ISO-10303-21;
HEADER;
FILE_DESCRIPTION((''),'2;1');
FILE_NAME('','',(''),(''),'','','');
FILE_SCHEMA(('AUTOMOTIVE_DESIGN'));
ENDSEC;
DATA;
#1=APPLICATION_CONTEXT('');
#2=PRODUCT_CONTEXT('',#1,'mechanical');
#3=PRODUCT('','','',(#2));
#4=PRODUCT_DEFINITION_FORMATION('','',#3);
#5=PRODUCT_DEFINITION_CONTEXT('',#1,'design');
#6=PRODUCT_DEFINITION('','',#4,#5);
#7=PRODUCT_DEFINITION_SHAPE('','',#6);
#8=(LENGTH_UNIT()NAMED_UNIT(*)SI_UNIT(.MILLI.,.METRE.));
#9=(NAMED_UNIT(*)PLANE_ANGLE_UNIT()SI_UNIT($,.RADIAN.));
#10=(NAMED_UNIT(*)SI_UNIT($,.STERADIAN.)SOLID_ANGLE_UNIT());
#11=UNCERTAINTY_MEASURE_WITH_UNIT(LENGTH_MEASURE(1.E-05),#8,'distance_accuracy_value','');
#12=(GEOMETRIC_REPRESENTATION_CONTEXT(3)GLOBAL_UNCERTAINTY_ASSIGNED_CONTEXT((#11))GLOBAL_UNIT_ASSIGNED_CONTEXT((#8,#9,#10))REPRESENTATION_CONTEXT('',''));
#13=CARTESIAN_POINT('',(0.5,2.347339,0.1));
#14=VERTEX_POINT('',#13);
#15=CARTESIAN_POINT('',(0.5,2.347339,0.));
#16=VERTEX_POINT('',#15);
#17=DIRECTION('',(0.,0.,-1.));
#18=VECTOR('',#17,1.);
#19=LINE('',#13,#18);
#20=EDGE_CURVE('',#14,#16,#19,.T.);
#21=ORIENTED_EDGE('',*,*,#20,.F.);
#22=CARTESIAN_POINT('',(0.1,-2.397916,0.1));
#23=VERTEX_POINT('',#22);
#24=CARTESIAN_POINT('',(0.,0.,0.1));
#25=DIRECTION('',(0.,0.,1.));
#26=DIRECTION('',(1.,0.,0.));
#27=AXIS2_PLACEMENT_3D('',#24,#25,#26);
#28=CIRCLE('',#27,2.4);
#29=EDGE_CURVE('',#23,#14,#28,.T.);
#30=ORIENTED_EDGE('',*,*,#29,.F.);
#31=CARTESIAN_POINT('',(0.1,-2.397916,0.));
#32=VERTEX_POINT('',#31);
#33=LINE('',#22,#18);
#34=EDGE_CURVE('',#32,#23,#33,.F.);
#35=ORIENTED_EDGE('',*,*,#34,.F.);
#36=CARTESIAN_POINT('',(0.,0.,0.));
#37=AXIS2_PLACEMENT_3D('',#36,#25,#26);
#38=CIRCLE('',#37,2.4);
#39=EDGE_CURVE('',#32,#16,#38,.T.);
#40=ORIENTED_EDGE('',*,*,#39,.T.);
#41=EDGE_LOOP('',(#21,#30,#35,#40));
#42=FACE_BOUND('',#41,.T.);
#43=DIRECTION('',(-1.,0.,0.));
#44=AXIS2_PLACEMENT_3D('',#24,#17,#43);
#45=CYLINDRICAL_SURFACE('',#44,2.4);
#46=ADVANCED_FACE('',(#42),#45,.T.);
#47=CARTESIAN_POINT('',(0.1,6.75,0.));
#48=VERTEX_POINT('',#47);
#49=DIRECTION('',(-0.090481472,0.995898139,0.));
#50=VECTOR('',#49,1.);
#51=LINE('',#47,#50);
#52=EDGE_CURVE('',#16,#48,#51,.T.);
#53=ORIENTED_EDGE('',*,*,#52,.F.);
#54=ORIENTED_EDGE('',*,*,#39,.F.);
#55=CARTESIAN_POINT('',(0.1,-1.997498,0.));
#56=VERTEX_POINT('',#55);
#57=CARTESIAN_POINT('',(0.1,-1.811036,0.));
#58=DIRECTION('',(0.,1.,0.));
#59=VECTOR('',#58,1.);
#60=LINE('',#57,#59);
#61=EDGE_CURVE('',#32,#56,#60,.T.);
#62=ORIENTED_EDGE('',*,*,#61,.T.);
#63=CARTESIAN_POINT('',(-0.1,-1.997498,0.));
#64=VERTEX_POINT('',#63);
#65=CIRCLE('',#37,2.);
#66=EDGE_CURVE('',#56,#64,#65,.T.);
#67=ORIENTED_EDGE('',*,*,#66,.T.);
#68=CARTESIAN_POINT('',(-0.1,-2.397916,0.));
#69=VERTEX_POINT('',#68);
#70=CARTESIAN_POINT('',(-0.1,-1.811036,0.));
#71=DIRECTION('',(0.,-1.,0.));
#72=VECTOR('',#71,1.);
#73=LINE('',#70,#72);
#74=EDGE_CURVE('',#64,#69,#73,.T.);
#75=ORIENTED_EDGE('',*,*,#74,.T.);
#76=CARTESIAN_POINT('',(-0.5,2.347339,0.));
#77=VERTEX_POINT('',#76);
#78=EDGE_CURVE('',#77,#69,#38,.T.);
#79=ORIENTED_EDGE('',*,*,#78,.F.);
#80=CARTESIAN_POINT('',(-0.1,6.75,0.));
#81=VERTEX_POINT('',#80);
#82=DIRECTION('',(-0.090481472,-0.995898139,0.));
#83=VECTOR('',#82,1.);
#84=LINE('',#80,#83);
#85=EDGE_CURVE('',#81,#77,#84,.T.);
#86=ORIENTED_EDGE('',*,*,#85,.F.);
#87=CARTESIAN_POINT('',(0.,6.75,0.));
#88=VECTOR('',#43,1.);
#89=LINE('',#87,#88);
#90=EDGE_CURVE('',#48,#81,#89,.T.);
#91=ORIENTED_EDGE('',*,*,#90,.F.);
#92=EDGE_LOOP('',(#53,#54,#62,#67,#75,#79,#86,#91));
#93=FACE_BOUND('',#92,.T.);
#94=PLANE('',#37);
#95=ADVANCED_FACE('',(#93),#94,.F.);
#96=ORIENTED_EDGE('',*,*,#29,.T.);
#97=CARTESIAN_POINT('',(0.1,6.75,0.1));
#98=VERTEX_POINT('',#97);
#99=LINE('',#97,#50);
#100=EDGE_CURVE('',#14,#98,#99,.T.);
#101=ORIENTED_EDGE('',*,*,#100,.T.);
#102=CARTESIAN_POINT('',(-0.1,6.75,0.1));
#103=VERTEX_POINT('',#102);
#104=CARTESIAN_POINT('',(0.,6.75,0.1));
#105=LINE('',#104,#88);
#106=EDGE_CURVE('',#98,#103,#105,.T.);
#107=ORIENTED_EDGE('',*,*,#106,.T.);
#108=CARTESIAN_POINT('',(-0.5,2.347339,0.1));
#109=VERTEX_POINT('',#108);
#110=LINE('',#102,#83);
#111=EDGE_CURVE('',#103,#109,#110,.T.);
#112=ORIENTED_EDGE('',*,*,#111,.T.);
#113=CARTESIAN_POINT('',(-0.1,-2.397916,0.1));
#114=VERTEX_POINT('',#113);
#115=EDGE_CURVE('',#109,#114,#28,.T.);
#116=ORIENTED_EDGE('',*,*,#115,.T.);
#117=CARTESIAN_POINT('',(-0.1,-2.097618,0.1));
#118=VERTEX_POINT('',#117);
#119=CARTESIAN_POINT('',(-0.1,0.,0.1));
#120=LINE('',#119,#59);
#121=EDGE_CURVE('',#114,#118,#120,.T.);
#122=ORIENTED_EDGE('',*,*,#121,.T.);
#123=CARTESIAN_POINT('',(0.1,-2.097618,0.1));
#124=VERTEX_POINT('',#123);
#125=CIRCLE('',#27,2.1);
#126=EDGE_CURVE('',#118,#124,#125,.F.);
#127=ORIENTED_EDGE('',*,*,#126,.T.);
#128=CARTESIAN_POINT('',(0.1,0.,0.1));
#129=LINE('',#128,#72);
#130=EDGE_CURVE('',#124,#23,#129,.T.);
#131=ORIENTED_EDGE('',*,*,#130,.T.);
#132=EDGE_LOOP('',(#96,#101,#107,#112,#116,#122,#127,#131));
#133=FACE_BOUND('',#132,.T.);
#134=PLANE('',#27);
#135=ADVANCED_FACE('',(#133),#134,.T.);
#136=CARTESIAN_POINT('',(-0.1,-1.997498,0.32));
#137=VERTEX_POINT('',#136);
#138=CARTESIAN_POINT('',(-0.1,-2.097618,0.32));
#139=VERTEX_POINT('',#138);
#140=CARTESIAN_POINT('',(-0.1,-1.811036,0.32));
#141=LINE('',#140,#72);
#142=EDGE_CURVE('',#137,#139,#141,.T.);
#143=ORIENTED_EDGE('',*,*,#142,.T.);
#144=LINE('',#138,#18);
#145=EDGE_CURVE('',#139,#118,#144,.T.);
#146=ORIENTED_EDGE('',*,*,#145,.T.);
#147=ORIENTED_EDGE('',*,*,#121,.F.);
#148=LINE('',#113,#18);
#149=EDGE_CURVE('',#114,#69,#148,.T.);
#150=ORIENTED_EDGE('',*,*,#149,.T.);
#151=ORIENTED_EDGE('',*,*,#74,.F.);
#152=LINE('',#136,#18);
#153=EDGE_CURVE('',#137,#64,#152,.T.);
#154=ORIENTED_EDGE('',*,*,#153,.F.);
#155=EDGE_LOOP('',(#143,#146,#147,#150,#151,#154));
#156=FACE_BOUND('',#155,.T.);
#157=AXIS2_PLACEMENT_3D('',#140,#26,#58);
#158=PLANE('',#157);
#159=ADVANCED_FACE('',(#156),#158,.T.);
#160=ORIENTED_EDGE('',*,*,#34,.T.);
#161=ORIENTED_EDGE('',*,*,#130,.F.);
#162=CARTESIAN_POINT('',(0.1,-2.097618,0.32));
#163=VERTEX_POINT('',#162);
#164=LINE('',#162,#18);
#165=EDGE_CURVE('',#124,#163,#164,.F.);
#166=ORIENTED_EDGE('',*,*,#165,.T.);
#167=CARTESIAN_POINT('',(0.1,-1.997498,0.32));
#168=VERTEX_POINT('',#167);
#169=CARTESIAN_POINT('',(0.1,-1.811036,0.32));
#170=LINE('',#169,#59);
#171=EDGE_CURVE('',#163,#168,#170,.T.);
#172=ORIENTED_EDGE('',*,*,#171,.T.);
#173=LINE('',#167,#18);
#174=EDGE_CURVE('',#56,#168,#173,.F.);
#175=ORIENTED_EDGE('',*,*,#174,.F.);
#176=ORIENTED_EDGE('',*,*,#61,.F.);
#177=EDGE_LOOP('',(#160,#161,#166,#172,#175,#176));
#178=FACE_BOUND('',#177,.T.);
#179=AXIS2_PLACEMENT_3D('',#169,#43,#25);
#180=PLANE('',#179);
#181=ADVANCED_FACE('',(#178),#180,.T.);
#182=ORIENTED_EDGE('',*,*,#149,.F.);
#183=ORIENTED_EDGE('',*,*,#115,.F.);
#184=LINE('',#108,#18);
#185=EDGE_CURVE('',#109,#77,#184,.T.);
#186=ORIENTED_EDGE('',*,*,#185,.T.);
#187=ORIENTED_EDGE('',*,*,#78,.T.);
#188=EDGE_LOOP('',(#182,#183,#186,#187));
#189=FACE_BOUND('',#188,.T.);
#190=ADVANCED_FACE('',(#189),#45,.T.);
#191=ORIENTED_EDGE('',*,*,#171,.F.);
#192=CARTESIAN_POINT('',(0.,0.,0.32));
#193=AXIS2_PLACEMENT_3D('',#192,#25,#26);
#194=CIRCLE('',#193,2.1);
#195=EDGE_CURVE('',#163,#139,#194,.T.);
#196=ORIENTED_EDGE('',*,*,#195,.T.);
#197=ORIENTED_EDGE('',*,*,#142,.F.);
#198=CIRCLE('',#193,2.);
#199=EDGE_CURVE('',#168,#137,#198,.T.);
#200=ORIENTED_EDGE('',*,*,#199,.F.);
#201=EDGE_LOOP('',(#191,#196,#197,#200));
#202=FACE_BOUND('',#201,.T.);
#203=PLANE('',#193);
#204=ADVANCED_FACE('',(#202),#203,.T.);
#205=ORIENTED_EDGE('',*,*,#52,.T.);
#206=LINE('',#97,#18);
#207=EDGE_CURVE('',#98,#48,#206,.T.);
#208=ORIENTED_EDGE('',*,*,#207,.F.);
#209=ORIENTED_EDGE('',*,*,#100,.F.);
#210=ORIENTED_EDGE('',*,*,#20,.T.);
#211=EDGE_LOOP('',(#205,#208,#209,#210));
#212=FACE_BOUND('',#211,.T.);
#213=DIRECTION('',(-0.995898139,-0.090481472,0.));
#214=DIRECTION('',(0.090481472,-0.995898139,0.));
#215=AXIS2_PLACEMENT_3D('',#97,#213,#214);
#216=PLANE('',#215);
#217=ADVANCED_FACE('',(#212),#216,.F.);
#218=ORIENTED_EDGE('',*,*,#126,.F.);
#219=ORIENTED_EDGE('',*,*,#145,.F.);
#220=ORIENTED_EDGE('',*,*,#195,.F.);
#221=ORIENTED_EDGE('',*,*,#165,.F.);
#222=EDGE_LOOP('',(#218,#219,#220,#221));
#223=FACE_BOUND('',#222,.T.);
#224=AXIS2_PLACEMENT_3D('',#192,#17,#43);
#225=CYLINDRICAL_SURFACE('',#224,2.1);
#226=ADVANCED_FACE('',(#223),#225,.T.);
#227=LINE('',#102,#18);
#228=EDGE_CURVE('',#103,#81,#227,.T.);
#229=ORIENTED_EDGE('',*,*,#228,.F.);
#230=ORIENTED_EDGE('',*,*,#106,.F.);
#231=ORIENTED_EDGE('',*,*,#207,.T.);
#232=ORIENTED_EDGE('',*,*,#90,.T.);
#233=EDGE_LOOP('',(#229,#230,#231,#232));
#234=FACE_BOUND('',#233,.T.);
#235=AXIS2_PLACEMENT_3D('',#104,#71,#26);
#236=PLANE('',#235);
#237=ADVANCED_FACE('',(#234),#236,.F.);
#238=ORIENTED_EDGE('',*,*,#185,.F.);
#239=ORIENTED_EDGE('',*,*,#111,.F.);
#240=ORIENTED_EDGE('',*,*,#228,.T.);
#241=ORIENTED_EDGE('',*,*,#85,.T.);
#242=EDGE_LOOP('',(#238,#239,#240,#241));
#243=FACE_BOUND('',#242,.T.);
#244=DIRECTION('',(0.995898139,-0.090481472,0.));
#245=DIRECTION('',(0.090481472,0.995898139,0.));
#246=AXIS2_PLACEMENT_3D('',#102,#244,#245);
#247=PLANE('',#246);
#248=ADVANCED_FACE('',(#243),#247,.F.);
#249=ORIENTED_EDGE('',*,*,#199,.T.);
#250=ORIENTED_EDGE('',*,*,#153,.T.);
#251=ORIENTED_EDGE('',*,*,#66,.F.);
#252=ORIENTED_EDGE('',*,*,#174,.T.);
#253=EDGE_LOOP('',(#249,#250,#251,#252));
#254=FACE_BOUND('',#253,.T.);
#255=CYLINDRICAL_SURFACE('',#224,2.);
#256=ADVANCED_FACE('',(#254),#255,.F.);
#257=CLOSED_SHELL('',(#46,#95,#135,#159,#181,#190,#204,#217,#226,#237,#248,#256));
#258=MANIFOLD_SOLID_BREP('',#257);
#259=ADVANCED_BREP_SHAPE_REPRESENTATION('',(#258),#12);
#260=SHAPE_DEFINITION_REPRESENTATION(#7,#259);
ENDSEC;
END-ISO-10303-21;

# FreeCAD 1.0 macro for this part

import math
import FreeCAD as App
import Part
import Sketcher
from FreeCAD import Vector
Q = App.Units.Quantity

doc = App.newDocument("Part")
params = doc.addObject("Spreadsheet::Sheet", "Params")
for row, (alias, value) in enumerate([
    ("sketch1_radius", "2.4 mm"),
    ("sketch1_width", "0.2 mm"),
    ("pad1_length", "0.1 mm"),
    ("sketch2_diameter", "4.2 mm"),
    ("pad2_length", "0.32 mm"),
    ("sketch3_diameter", "4 mm"),
    ("sketch4_width", "0.2 mm"),
], start=1):
    params.set(f"A{row}", alias)
    params.set(f"B{row}", "=" + value)
    params.setAlias(f"B{row}", alias)

body = doc.addObject("PartDesign::Body", "Body")

# Sketch on XY plane
sketch1 = body.newObject("Sketcher::SketchObject", "Sketch")
sketch1.AttachmentSupport = (doc.getObject("XY_Plane"), [""])
sketch1.MapMode = "FlatFace"
sketch1.addGeometry(Part.LineSegment(Vector(0.5, 2.35, 0), Vector(0.1, 6.75, 0)), False)
sketch1.addGeometry(Part.LineSegment(Vector(0.1, 6.75, 0), Vector(-0.1, 6.75, 0)), False)
sketch1.addGeometry(Part.LineSegment(Vector(-0.1, 6.75, 0), Vector(-0.5, 2.35, 0)), False)
sketch1.addGeometry(Part.ArcOfCircle(Part.Circle(Vector(0, 0, 0), Vector(0, 0, 1), 2.4), math.radians(102), math.radians(438)), False)
sketch1.addConstraint(Sketcher.Constraint("Coincident", 0, 2, 1, 1))
sketch1.addConstraint(Sketcher.Constraint("Coincident", 1, 2, 2, 1))
sketch1.addConstraint(Sketcher.Constraint("Coincident", 2, 2, 3, 1))
sketch1.addConstraint(Sketcher.Constraint("Coincident", 3, 2, 0, 1))
sketch1.addConstraint(Sketcher.Constraint("Horizontal", 1))
sketch1.addConstraint(Sketcher.Constraint("Coincident", 3, 3, -1, 1))
sketch1.addConstraint(Sketcher.Constraint("Horizontal", 2, 2, 3, 2))
sketch1.addConstraint(Sketcher.Constraint("Equal", 0, 2))
sketch1.addConstraint(Sketcher.Constraint("Radius", 3, Q("2.4 mm")))
sketch1.addConstraint(Sketcher.Constraint("DistanceX", 1, 2, 1, 1, Q("0.2 mm")))
sketch1.addConstraint(Sketcher.Constraint("DistanceX", 2, 2, 3, 2, Q("1 mm")))
sketch1.addConstraint(Sketcher.Constraint("DistanceY", -1, 1, 0, 2, Q("6.75 mm")))
sketch1.setExpression("Constraints[8]", "Params.sketch1_radius")
sketch1.setExpression("Constraints[9]", "Params.sketch1_width")
pad1 = body.newObject("PartDesign::Pad", "Pad")
pad1.Profile = sketch1
pad1.setExpression("Length", "Params.pad1_length")

# Sketch on XY plane
sketch2 = body.newObject("Sketcher::SketchObject", "Sketch001")
sketch2.AttachmentSupport = (doc.getObject("XY_Plane"), [""])
sketch2.MapMode = "FlatFace"
sketch2.addGeometry(Part.Circle(Vector(0, 0, 0), Vector(0, 0, 1), 2.1), False)
sketch2.addConstraint(Sketcher.Constraint("Coincident", 0, 3, -1, 1))
sketch2.addConstraint(Sketcher.Constraint("Diameter", 0, Q("4.2 mm")))
sketch2.setExpression("Constraints[1]", "Params.sketch2_diameter")
pad2 = body.newObject("PartDesign::Pad", "Pad001")
pad2.Profile = sketch2
pad2.setExpression("Length", "Params.pad2_length")

# Sketch on XY plane
sketch3 = body.newObject("Sketcher::SketchObject", "Sketch002")
sketch3.AttachmentSupport = (doc.getObject("XY_Plane"), [""])
sketch3.MapMode = "FlatFace"
sketch3.addGeometry(Part.Circle(Vector(0, 0, 0), Vector(0, 0, 1), 2), False)
sketch3.addConstraint(Sketcher.Constraint("Coincident", 0, 3, -1, 1))
sketch3.addConstraint(Sketcher.Constraint("Diameter", 0, Q("4 mm")))
sketch3.setExpression("Constraints[1]", "Params.sketch3_diameter")
pocket1 = body.newObject("PartDesign::Pocket", "Pocket")
pocket1.Profile = sketch3
pocket1.Type = "ThroughAll"
pocket1.Reversed = True

# Sketch on XY plane
sketch4 = body.newObject("Sketcher::SketchObject", "Sketch003")
sketch4.AttachmentSupport = (doc.getObject("XY_Plane"), [""])
sketch4.MapMode = "FlatFace"
sketch4.addGeometry(Part.LineSegment(Vector(-0.1, -1.81, 0), Vector(-0.1, -2.71, 0)), False)
sketch4.addGeometry(Part.LineSegment(Vector(-0.1, -2.71, 0), Vector(0.1, -2.71, 0)), False)
sketch4.addGeometry(Part.LineSegment(Vector(0.1, -2.71, 0), Vector(0.1, -1.81, 0)), False)
sketch4.addGeometry(Part.LineSegment(Vector(0.1, -1.81, 0), Vector(-0.1, -1.81, 0)), False)
sketch4.addConstraint(Sketcher.Constraint("Coincident", 0, 2, 1, 1))
sketch4.addConstraint(Sketcher.Constraint("Coincident", 1, 2, 2, 1))
sketch4.addConstraint(Sketcher.Constraint("Coincident", 2, 2, 3, 1))
sketch4.addConstraint(Sketcher.Constraint("Coincident", 3, 2, 0, 1))
sketch4.addConstraint(Sketcher.Constraint("Vertical", 0))
sketch4.addConstraint(Sketcher.Constraint("Horizontal", 1))
sketch4.addConstraint(Sketcher.Constraint("Vertical", 2))
sketch4.addConstraint(Sketcher.Constraint("Horizontal", 3))
sketch4.addConstraint(Sketcher.Constraint("DistanceX", 1, 1, 1, 2, Q("0.2 mm")))
sketch4.addConstraint(Sketcher.Constraint("DistanceX", 0, 2, -1, 1, Q("0.1 mm")))
sketch4.addConstraint(Sketcher.Constraint("DistanceY", 0, 2, 0, 1, Q("0.897153 mm")))
sketch4.addConstraint(Sketcher.Constraint("DistanceY", 0, 2, -1, 1, Q("2.708189 mm")))
sketch4.setExpression("Constraints[8]", "Params.sketch4_width")
pocket2 = body.newObject("PartDesign::Pocket", "Pocket001")
pocket2.Profile = sketch4
pocket2.Type = "ThroughAll"
pocket2.Reversed = True

doc.recompute()
